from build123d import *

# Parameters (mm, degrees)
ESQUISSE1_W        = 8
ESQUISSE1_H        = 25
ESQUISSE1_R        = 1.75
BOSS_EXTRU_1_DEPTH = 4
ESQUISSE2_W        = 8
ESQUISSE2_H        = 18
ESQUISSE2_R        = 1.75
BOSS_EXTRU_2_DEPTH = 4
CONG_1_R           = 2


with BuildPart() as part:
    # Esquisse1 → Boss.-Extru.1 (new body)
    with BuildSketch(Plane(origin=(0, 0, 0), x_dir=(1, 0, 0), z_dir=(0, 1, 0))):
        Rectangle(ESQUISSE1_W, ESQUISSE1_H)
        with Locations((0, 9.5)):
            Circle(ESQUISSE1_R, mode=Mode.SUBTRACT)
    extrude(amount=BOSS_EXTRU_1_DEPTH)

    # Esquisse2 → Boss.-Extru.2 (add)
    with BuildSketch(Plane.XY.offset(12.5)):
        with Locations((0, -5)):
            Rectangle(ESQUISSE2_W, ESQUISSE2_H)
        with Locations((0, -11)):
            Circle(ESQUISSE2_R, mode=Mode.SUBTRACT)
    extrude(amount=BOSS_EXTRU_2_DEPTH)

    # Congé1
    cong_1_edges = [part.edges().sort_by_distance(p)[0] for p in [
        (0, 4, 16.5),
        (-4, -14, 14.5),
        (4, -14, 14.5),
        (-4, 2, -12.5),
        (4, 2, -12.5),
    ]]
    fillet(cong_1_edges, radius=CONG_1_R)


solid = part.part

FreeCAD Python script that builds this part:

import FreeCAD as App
import Part
import Sketcher
Q = App.Units.Quantity


def edges_at(feature, points):
    """Names of the edges that pass closest to the given points."""
    edges = feature.Shape.Edges
    near = lambda p: min(range(len(edges)), key=lambda i: edges[i].distToShape(Part.Vertex(*p))[0])
    return sorted({f"Edge{near(p) + 1}" for p in points})


def add_polygon(sketch, points):
    """Adds a closed chain of lines whose ends are joined by coincident constraints."""
    first, n = sketch.GeometryCount, len(points)
    for a, b in zip(points, points[1:] + points[:1]):
        sketch.addGeometry(Part.LineSegment(App.Vector(*a, 0), App.Vector(*b, 0)), False)
    for i in range(n):
        sketch.addConstraint(Sketcher.Constraint("Coincident", first + i, 2, first + (i + 1) % n, 1))

doc = App.newDocument("Part")
params = doc.addObject("Spreadsheet::Sheet", "Params")
for row, (alias, value) in enumerate([
    ("sketch1_diameter", "3.5 mm"),
    ("sketch1_width", "8 mm"),
    ("sketch1_height", "25 mm"),
    ("pad1_length", "4 mm"),
    ("sketch2_diameter", "3.5 mm"),
    ("sketch2_width", "8 mm"),
    ("sketch2_height", "18 mm"),
    ("pad2_length", "4 mm"),
    ("fillet_radius", "2 mm"),
], start=1):
    params.set(f"A{row}", alias)
    params.set(f"B{row}", "=" + value)
    params.setAlias(f"B{row}", alias)

body = doc.addObject("PartDesign::Body", "Body")

sketch1 = body.newObject("Sketcher::SketchObject", "Sketch")
sketch1.AttachmentSupport = (doc.getObject("XZ_Plane"), [""])
sketch1.MapMode = "FlatFace"
add_polygon(sketch1, [(-4, -12.5), (-4, 12.5), (4, 12.5), (4, -12.5)])
sketch1.addGeometry(Part.Circle(App.Vector(0, -9.5, 0), App.Vector(0, 0, 1), 1.8), False)
sketch1.addConstraint([
    Sketcher.Constraint("Vertical", 0),
    Sketcher.Constraint("Horizontal", 1),
    Sketcher.Constraint("Vertical", 2),
    Sketcher.Constraint("Horizontal", 3),
    Sketcher.Constraint("Symmetric", 0, 2, 2, 2, -1, 1),
    Sketcher.Constraint("PointOnObject", 4, 3, -2),
    Sketcher.Constraint("Diameter", 4, Q("3.5 mm")),
    Sketcher.Constraint("DistanceX", 1, 1, 1, 2, Q("8 mm")),
    Sketcher.Constraint("DistanceY", 0, 1, 0, 2, Q("25 mm")),
    Sketcher.Constraint("DistanceY", 4, 3, 0, 2, Q("22 mm")),
])
sketch1.setExpression("Constraints[10]", "Params.sketch1_diameter")
sketch1.setExpression("Constraints[11]", "Params.sketch1_width")
sketch1.setExpression("Constraints[12]", "Params.sketch1_height")
pad1 = body.newObject("PartDesign::Pad", "Pad")
pad1.Profile = sketch1
pad1.setExpression("Length", "Params.pad1_length")
pad1.Reversed = True

sketch2 = body.newObject("Sketcher::SketchObject", "Sketch001")
sketch2.AttachmentSupport = (doc.getObject("XY_Plane"), [""])
sketch2.MapMode = "FlatFace"
sketch2.AttachmentOffset = App.Placement(App.Vector(0, 0, 12.5), App.Rotation())
add_polygon(sketch2, [(-4, 4), (-4, -14), (4, -14), (4, 4)])
sketch2.addGeometry(Part.Circle(App.Vector(0, -11, 0), App.Vector(0, 0, 1), 1.8), False)
sketch2.addConstraint([
    Sketcher.Constraint("Vertical", 0),
    Sketcher.Constraint("Horizontal", 1),
    Sketcher.Constraint("Vertical", 2),
    Sketcher.Constraint("Horizontal", 3),
    Sketcher.Constraint("PointOnObject", 4, 3, -2),
    Sketcher.Constraint("Diameter", 4, Q("3.5 mm")),
    Sketcher.Constraint("DistanceX", 1, 1, 1, 2, Q("8 mm")),
    Sketcher.Constraint("DistanceY", 0, 2, 0, 1, Q("18 mm")),
    Sketcher.Constraint("DistanceY", 4, 3, -1, 1, Q("11 mm")),
    Sketcher.Constraint("DistanceX", 0, 2, -1, 1, Q("4 mm")),
    Sketcher.Constraint("DistanceY", 0, 2, -1, 1, Q("14 mm")),
])
sketch2.setExpression("Constraints[9]", "Params.sketch2_diameter")
sketch2.setExpression("Constraints[10]", "Params.sketch2_width")
sketch2.setExpression("Constraints[11]", "Params.sketch2_height")
pad2 = body.newObject("PartDesign::Pad", "Pad001")
pad2.Profile = sketch2
pad2.setExpression("Length", "Params.pad2_length")
doc.recompute()

fillet = body.newObject("PartDesign::Fillet", "Fillet")
fillet.Base = (pad2, edges_at(pad2, [
    (0, 4, 16.5),
    (-4, -14, 14.5),
    (4, -14, 14.5),
    (-4, 2, -12.5),
    (4, 2, -12.5),
]))
fillet.setExpression("Radius", "Params.fillet_radius")

doc.recompute()
